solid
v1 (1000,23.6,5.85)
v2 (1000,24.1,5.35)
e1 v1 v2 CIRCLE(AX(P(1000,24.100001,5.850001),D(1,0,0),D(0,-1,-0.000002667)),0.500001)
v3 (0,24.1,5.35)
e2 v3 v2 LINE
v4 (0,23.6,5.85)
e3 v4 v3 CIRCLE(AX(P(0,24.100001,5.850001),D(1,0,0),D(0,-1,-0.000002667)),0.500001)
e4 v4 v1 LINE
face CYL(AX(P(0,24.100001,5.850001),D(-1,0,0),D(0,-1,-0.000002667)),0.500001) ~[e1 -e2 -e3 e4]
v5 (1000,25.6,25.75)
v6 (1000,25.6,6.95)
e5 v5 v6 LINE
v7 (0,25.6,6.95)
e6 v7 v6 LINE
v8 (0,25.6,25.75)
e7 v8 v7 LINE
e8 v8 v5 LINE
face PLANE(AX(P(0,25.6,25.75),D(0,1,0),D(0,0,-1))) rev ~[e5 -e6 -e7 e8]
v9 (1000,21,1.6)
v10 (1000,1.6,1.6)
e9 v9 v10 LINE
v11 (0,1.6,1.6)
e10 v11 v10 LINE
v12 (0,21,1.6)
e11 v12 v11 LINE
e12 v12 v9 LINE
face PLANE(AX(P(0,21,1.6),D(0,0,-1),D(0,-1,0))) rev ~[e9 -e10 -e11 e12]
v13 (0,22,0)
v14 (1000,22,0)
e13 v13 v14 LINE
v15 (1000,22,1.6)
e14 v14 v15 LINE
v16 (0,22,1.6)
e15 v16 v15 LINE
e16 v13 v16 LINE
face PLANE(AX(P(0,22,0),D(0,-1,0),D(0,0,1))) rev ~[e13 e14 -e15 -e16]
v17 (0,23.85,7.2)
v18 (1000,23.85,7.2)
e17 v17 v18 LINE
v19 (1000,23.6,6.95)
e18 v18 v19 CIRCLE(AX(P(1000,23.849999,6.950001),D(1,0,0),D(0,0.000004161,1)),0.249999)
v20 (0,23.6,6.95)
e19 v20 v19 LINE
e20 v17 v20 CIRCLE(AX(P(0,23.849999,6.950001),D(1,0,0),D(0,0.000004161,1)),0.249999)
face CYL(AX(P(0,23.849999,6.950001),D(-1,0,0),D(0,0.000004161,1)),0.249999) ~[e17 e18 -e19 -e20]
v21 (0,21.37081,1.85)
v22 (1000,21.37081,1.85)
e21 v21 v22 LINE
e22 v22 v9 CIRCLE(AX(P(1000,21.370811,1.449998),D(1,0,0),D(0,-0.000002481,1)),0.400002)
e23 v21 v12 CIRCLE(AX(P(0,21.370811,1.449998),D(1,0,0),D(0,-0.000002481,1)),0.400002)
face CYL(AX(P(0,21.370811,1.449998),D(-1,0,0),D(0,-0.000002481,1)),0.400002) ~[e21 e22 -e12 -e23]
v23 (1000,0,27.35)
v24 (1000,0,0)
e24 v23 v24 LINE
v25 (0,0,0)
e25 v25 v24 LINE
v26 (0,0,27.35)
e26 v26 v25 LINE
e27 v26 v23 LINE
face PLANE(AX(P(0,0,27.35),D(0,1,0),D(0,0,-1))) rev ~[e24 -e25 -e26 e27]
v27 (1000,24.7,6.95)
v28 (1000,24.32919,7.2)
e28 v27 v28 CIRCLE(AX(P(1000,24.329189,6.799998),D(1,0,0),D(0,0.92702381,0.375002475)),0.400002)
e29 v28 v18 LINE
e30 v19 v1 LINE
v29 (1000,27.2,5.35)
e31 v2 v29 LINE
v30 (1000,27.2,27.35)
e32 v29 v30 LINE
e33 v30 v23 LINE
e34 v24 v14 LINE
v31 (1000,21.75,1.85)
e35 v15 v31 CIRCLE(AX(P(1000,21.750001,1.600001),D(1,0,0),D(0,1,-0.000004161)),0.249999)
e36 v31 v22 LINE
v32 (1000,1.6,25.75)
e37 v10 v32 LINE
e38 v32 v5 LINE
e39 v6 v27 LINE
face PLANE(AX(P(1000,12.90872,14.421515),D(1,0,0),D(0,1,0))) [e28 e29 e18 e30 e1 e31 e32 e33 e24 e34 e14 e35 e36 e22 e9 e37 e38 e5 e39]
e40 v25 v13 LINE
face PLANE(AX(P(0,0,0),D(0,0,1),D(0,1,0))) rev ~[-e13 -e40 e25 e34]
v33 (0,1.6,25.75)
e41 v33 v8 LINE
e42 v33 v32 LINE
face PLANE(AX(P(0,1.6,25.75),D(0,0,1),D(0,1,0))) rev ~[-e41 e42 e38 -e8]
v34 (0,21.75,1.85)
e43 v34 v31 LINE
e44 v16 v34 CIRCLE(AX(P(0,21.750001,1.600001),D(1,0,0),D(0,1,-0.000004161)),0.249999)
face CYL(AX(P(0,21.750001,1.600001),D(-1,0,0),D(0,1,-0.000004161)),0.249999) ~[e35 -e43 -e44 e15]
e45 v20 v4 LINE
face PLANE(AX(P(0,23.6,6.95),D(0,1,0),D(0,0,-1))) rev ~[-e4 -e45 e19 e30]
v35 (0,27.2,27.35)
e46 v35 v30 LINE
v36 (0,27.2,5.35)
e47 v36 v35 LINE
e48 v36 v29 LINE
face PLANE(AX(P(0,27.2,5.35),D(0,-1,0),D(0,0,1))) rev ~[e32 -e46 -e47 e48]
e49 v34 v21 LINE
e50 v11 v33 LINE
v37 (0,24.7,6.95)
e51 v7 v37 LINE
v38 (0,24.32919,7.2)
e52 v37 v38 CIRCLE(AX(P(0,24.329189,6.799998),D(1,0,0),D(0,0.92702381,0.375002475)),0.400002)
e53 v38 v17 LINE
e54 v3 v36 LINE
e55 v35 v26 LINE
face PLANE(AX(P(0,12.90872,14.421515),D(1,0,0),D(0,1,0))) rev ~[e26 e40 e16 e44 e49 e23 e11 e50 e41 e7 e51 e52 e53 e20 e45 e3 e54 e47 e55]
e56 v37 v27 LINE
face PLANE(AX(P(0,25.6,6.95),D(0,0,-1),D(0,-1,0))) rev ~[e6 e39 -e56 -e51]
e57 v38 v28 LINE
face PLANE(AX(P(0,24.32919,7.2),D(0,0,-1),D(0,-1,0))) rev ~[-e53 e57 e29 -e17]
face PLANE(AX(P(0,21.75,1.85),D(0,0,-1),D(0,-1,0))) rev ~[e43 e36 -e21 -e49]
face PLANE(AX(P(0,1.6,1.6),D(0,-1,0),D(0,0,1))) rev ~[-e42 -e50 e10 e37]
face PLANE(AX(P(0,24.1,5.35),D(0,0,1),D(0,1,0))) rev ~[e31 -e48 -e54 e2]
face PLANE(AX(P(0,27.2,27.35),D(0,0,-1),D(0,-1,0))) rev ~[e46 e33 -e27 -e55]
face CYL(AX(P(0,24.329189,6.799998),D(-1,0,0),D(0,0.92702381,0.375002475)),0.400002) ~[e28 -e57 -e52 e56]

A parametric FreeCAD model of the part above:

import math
import FreeCAD as App
import Part
import Sketcher
from FreeCAD import Vector
Q = App.Units.Quantity

doc = App.newDocument("Part")
body = doc.addObject("PartDesign::Body", "Body")

# Sketch on YZ plane
sketch1 = body.newObject("Sketcher::SketchObject", "Sketch")
sketch1.AttachmentSupport = (doc.getObject("YZ_Plane"), [""])
sketch1.MapMode = "FlatFace"
sketch1.addGeometry([
    Part.LineSegment(Vector(27.2, 5.35, 0), Vector(27.2, 27.35, 0)),  # 0
    Part.LineSegment(Vector(27.2, 27.35, 0), Vector(0, 27.35, 0)),  # 1
    Part.LineSegment(Vector(0, 27.35, 0), Vector(0, 0, 0)),  # 2
    Part.LineSegment(Vector(0, 0, 0), Vector(22, 0, 0)),  # 3
    Part.LineSegment(Vector(22, 0, 0), Vector(22, 1.6, 0)),  # 4
    Part.ArcOfCircle(Part.Circle(Vector(21.75, 1.6, 0), Vector(0, 0, 1), 0.25), math.radians(0), math.radians(90)),  # 5
    Part.LineSegment(Vector(21.75, 1.85, 0), Vector(21.37, 1.85, 0)),  # 6
    Part.ArcOfCircle(Part.Circle(Vector(21.37, 1.45, 0), Vector(0, 0, 1), 0.4), math.radians(90), math.radians(158)),  # 7
    Part.LineSegment(Vector(21, 1.6, 0), Vector(1.6, 1.6, 0)),  # 8
    Part.LineSegment(Vector(1.6, 1.6, 0), Vector(1.6, 25.75, 0)),  # 9
    Part.LineSegment(Vector(1.6, 25.75, 0), Vector(25.6, 25.75, 0)),  # 10
    Part.LineSegment(Vector(25.6, 25.75, 0), Vector(25.6, 6.95, 0)),  # 11
    Part.LineSegment(Vector(25.6, 6.95, 0), Vector(24.7, 6.95, 0)),  # 12
    Part.ArcOfCircle(Part.Circle(Vector(24.33, 6.8, 0), Vector(0, 0, 1), 0.4), math.radians(22), math.radians(90)),  # 13
    Part.LineSegment(Vector(24.33, 7.2, 0), Vector(23.85, 7.2, 0)),  # 14
    Part.ArcOfCircle(Part.Circle(Vector(23.85, 6.95, 0), Vector(0, 0, 1), 0.25), math.radians(90), math.radians(180)),  # 15
    Part.LineSegment(Vector(23.6, 6.95, 0), Vector(23.6, 5.85, 0)),  # 16
    Part.ArcOfCircle(Part.Circle(Vector(24.1, 5.85, 0), Vector(0, 0, 1), 0.5), math.radians(-180), math.radians(-90)),  # 17
    Part.LineSegment(Vector(24.1, 5.35, 0), Vector(27.2, 5.35, 0)),  # 18
], False)
sketch1.addConstraint([
    Sketcher.Constraint("Coincident", 0, 2, 1, 1),
    Sketcher.Constraint("Coincident", 1, 2, 2, 1),
    Sketcher.Constraint("Coincident", 2, 2, 3, 1),
    Sketcher.Constraint("Coincident", 3, 2, 4, 1),
    Sketcher.Constraint("Coincident", 4, 2, 5, 1),
    Sketcher.Constraint("Coincident", 5, 2, 6, 1),
    Sketcher.Constraint("Coincident", 6, 2, 7, 1),
    Sketcher.Constraint("Coincident", 7, 2, 8, 1),
    Sketcher.Constraint("Coincident", 8, 2, 9, 1),
    Sketcher.Constraint("Coincident", 9, 2, 10, 1),
    Sketcher.Constraint("Coincident", 10, 2, 11, 1),
    Sketcher.Constraint("Coincident", 11, 2, 12, 1),
    Sketcher.Constraint("Coincident", 12, 2, 13, 1),
    Sketcher.Constraint("Coincident", 13, 2, 14, 1),
    Sketcher.Constraint("Coincident", 14, 2, 15, 1),
    Sketcher.Constraint("Coincident", 15, 2, 16, 1),
    Sketcher.Constraint("Coincident", 16, 2, 17, 1),
    Sketcher.Constraint("Coincident", 17, 2, 18, 1),
    Sketcher.Constraint("Coincident", 18, 2, 0, 1),
    Sketcher.Constraint("Vertical", 0),
    Sketcher.Constraint("Horizontal", 1),
    Sketcher.Constraint("Vertical", 2),
    Sketcher.Constraint("Horizontal", 3),
    Sketcher.Constraint("Vertical", 4),
    Sketcher.Constraint("Horizontal", 6),
    Sketcher.Constraint("Horizontal", 8),
    Sketcher.Constraint("Vertical", 9),
    Sketcher.Constraint("Horizontal", 10),
    Sketcher.Constraint("Vertical", 11),
    Sketcher.Constraint("Horizontal", 12),
    Sketcher.Constraint("Horizontal", 14),
    Sketcher.Constraint("Vertical", 16),
    Sketcher.Constraint("Horizontal", 18),
    Sketcher.Constraint("Coincident", 2, 2, -1, 1),
    Sketcher.Constraint("Equal", 7, 13),
    Sketcher.Constraint("Equal", 5, 15),
    Sketcher.Constraint("Horizontal", 5, 3, 4, 2),
    Sketcher.Constraint("Horizontal", 4, 2, 7, 2),
    Sketcher.Constraint("Horizontal", 15, 3, 11, 2),
    Sketcher.Constraint("Horizontal", 12, 2, 15, 2),
    Sketcher.Constraint("Horizontal", 17, 3, 16, 2),
    Sketcher.Constraint("Vertical", 7, 3, 6, 2),
    Sketcher.Constraint("Vertical", 15, 3, 14, 2),
    Sketcher.Constraint("Equal", 3, 0),
    Sketcher.Constraint("Radius", 7, Q("0.400002 mm")),
    Sketcher.Constraint("Radius", 17, Q("0.500001 mm")),
    Sketcher.Constraint("DistanceX", 3, 1, 3, 2, Q("22 mm")),
    Sketcher.Constraint("DistanceX", 10, 1, 10, 2, Q("24 mm")),
    Sketcher.Constraint("Radius", 5, Q("0.249999 mm")),
    Sketcher.Constraint("DistanceX", 1, 2, 1, 1, Q("27.2 mm")),
    Sketcher.Constraint("DistanceX", 8, 2, 8, 1, Q("19.4 mm")),
    Sketcher.Constraint("DistanceX", 12, 2, 12, 1, Q("0.9 mm")),
    Sketcher.Constraint("DistanceX", 18, 1, 18, 2, Q("3.1 mm")),
    Sketcher.Constraint("DistanceY", 4, 1, 4, 2, Q("1.6 mm")),
    Sketcher.Constraint("DistanceY", 11, 2, 11, 1, Q("18.8 mm")),
    Sketcher.Constraint("DistanceY", 16, 2, 16, 1, Q("1.1 mm")),
    Sketcher.Constraint("DistanceX", -1, 1, 7, 2, Q("21 mm")),
    Sketcher.Constraint("DistanceY", 5, 2, 17, 3, Q("4.000001 mm")),
    Sketcher.Constraint("DistanceX", -1, 1, 17, 3, Q("24.100001 mm")),
    Sketcher.Constraint("DistanceX", -1, 1, 5, 2, Q("21.75 mm")),
    Sketcher.Constraint("DistanceX", 14, 2, 14, 1, Q("0.47919 mm")),
])
pad1 = body.newObject("PartDesign::Pad", "Pad")
pad1.Profile = sketch1
pad1.Length = 1000

doc.recompute()
